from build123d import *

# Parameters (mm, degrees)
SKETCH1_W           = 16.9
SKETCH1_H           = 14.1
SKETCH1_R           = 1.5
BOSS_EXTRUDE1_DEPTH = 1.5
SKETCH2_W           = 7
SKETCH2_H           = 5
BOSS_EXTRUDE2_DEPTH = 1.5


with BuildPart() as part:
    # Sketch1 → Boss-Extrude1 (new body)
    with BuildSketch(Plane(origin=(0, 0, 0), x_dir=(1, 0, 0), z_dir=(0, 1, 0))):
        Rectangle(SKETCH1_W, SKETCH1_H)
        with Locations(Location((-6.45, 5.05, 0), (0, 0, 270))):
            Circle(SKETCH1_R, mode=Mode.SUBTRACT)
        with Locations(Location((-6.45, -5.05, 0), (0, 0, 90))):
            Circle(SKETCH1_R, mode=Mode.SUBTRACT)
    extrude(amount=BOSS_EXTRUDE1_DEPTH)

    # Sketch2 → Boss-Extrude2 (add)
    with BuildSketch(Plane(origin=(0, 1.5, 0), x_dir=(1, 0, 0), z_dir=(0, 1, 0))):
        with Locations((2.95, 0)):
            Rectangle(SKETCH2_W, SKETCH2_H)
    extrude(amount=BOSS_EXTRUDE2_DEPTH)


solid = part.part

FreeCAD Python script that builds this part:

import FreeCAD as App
import Part
import Sketcher


def add_polygon(sketch, points):
    """Adds a closed chain of lines whose ends are joined by coincident constraints."""
    first, n = sketch.GeometryCount, len(points)
    for a, b in zip(points, points[1:] + points[:1]):
        sketch.addGeometry(Part.LineSegment(App.Vector(*a, 0), App.Vector(*b, 0)), False)
    for i in range(n):
        sketch.addConstraint(Sketcher.Constraint("Coincident", first + i, 2, first + (i + 1) % n, 1))

doc = App.newDocument("Part")
body = doc.addObject("PartDesign::Body", "Body")

# Sketch on XZ plane
sketch1 = body.newObject("Sketcher::SketchObject", "Sketch")
sketch1.AttachmentSupport = (doc.getObject("XZ_Plane"), [""])
sketch1.MapMode = "FlatFace"
add_polygon(sketch1, [(-8.45, -7.05), (-8.45, 7.05), (8.45, 7.05), (8.45, -7.05)])  # lines 0-3
sketch1.addGeometry(Part.Circle(App.Vector(-6.45, 5.05, 0), App.Vector(0, 0, 1), 1.5), False)  # 4
sketch1.addGeometry(Part.Circle(App.Vector(-6.45, -5.05, 0), App.Vector(0, 0, 1), 1.5), False)  # 5
sketch1.addConstraint([
    Sketcher.Constraint("Vertical", 0),
    Sketcher.Constraint("Horizontal", 1),
    Sketcher.Constraint("Vertical", 2),
    Sketcher.Constraint("Horizontal", 3),
    Sketcher.Constraint("Equal", 4, 5),
    Sketcher.Constraint("Symmetric", 0, 2, 2, 2, -1, 1),
    Sketcher.Constraint("Symmetric", 4, 3, 5, 3, -1),
    Sketcher.Constraint("Diameter", 4, 3.0),
    Sketcher.Constraint("DistanceX", 1, 1, 1, 2, 16.9),
    Sketcher.Constraint("DistanceY", 0, 1, 0, 2, 14.1),
    Sketcher.Constraint("DistanceX", 0, 2, 4, 3, 2.0),
    Sketcher.Constraint("DistanceY", 4, 3, 0, 2, 2.0),
])
pad1 = body.newObject("PartDesign::Pad", "Pad")
pad1.Profile = sketch1
pad1.Length = 1.5
pad1.Reversed = True

# Sketch on XZ plane
sketch2 = body.newObject("Sketcher::SketchObject", "Sketch001")
sketch2.AttachmentSupport = (doc.getObject("XZ_Plane"), [""])
sketch2.MapMode = "FlatFace"
sketch2.AttachmentOffset = App.Placement(App.Vector(0, 0, -1.5), App.Rotation())
add_polygon(sketch2, [(-0.55, -2.5), (-0.55, 2.5), (6.45, 2.5), (6.45, -2.5)])  # lines 0-3
sketch2.addConstraint([
    Sketcher.Constraint("Vertical", 0),
    Sketcher.Constraint("Horizontal", 1),
    Sketcher.Constraint("Vertical", 2),
    Sketcher.Constraint("Horizontal", 3),
    Sketcher.Constraint("DistanceX", 1, 1, 1, 2, 7.0),
    Sketcher.Constraint("DistanceY", 0, 1, 0, 2, 5.0),
    Sketcher.Constraint("DistanceY", -1, 1, 0, 2, 2.5),
    Sketcher.Constraint("DistanceX", 0, 2, -1, 1, 0.55),
])
pad2 = body.newObject("PartDesign::Pad", "Pad001")
pad2.Profile = sketch2
pad2.Length = 1.5
pad2.Reversed = True

doc.recompute()
